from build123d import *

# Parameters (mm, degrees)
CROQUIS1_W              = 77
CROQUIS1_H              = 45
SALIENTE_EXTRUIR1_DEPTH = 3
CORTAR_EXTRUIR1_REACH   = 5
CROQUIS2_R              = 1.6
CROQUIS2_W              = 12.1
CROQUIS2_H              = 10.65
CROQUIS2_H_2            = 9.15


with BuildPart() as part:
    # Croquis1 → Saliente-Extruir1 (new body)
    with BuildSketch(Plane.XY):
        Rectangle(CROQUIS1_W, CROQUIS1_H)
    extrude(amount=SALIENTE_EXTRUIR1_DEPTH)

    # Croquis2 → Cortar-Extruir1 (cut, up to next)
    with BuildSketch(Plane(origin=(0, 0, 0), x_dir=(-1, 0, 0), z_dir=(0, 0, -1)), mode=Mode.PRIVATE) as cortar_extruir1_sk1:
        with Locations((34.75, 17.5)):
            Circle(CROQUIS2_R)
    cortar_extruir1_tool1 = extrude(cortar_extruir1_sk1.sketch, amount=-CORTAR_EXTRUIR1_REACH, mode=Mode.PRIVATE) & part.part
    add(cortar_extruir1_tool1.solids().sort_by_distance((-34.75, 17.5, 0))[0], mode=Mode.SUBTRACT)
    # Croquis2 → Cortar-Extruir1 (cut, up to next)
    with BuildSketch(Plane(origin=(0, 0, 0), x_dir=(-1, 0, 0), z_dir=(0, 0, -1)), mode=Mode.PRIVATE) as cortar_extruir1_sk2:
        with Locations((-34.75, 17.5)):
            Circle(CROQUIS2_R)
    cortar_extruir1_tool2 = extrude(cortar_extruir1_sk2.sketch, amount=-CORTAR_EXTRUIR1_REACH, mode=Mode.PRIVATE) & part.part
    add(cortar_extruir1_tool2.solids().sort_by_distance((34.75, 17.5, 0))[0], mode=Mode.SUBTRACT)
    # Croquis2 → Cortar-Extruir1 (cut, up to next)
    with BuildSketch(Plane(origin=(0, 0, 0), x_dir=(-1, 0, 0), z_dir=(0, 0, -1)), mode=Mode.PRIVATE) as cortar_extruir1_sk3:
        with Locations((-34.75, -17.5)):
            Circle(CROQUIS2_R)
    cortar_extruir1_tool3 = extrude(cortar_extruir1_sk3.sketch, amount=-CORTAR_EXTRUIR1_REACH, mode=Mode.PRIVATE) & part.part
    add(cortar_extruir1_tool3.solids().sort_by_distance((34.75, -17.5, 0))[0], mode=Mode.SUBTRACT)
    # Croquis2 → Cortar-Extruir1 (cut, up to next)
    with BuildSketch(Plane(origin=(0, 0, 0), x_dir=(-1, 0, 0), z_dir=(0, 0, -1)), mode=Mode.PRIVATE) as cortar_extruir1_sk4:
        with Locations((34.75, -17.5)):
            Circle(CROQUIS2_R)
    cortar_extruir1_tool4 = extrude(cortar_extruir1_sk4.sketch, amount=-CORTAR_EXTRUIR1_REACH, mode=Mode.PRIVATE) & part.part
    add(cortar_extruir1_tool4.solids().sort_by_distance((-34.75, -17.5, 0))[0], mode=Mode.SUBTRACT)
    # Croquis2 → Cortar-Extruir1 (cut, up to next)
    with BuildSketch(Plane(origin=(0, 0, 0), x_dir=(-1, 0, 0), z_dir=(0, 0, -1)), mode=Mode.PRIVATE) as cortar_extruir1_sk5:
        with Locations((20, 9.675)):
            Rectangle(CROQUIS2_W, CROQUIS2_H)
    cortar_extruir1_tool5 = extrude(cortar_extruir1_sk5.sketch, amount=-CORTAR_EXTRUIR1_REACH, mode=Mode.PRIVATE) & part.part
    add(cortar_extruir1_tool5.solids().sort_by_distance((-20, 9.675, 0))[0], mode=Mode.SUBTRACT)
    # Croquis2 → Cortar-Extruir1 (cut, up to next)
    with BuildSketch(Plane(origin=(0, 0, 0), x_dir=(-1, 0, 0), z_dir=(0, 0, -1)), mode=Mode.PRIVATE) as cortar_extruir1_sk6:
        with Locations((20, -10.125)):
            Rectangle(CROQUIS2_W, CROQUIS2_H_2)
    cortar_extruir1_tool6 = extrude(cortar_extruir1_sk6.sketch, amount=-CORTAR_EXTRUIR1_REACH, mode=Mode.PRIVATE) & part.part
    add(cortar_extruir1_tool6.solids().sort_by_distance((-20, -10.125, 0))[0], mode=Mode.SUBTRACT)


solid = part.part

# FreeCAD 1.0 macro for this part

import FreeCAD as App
import Part
import Sketcher
Q = App.Units.Quantity

doc = App.newDocument("Part")
body = doc.addObject("PartDesign::Body", "Body")

# Sketch on XY plane
sketch1 = doc.addObject("Sketcher::SketchObject", "Sketch")
body.addObject(sketch1)
sketch1.AttachmentSupport = (doc.XY_Plane, [""])
sketch1.MapMode = "FlatFace"
sketch1.addGeometry(Part.LineSegment(App.Vector(-38, 22, 0), App.Vector(-38, -22, 0)), False)
sketch1.addGeometry(Part.LineSegment(App.Vector(-38, -22, 0), App.Vector(38, -22, 0)), False)
sketch1.addGeometry(Part.LineSegment(App.Vector(38, -22, 0), App.Vector(38, 22, 0)), False)
sketch1.addGeometry(Part.LineSegment(App.Vector(38, 22, 0), App.Vector(-38, 22, 0)), False)
sketch1.addConstraint(Sketcher.Constraint("Coincident", 0, 2, 1, 1))
sketch1.addConstraint(Sketcher.Constraint("Coincident", 1, 2, 2, 1))
sketch1.addConstraint(Sketcher.Constraint("Coincident", 2, 2, 3, 1))
sketch1.addConstraint(Sketcher.Constraint("Coincident", 3, 2, 0, 1))
sketch1.addConstraint(Sketcher.Constraint("Vertical", 0))
sketch1.addConstraint(Sketcher.Constraint("Horizontal", 1))
sketch1.addConstraint(Sketcher.Constraint("Vertical", 2))
sketch1.addConstraint(Sketcher.Constraint("Horizontal", 3))
sketch1.addConstraint(Sketcher.Constraint("Symmetric", 0, 2, 2, 2, -1, 1))
sketch1.addConstraint(Sketcher.Constraint("DistanceX", 1, 1, 1, 2, Q("77 mm")))
sketch1.addConstraint(Sketcher.Constraint("DistanceY", 0, 2, 0, 1, Q("45 mm")))
pad1 = doc.addObject("PartDesign::Pad", "Pad")
body.addObject(pad1)
pad1.Profile = sketch1
pad1.Length = 3

# Sketch on XY plane
sketch2 = doc.addObject("Sketcher::SketchObject", "Sketch001")
body.addObject(sketch2)
sketch2.AttachmentSupport = (doc.XY_Plane, [""])
sketch2.MapMode = "FlatFace"
sketch2.addGeometry(Part.Circle(App.Vector(-34.8, 17.5, 0), App.Vector(0, 0, 1), 1.6), False)
sketch2.addConstraint(Sketcher.Constraint("Diameter", 0, Q("3.2 mm")))
sketch2.addConstraint(Sketcher.Constraint("DistanceY", -1, 1, 0, 3, Q("17.5 mm")))
sketch2.addConstraint(Sketcher.Constraint("DistanceX", 0, 3, -1, 1, Q("34.75 mm")))
pocket1 = doc.addObject("PartDesign::Pocket", "Pocket")
body.addObject(pocket1)
pocket1.Profile = sketch2
pocket1.Type = "UpToFirst"
pocket1.Reversed = True

# Sketch on XY plane
sketch3 = doc.addObject("Sketcher::SketchObject", "Sketch002")
body.addObject(sketch3)
sketch3.AttachmentSupport = (doc.XY_Plane, [""])
sketch3.MapMode = "FlatFace"
sketch3.addGeometry(Part.Circle(App.Vector(34.8, 17.5, 0), App.Vector(0, 0, 1), 1.6), False)
sketch3.addConstraint(Sketcher.Constraint("Diameter", 0, Q("3.2 mm")))
sketch3.addConstraint(Sketcher.Constraint("DistanceY", -1, 1, 0, 3, Q("17.5 mm")))
sketch3.addConstraint(Sketcher.Constraint("DistanceX", -1, 1, 0, 3, Q("34.75 mm")))
pocket2 = doc.addObject("PartDesign::Pocket", "Pocket001")
body.addObject(pocket2)
pocket2.Profile = sketch3
pocket2.Type = "UpToFirst"
pocket2.Reversed = True

# Sketch on XY plane
sketch4 = doc.addObject("Sketcher::SketchObject", "Sketch003")
body.addObject(sketch4)
sketch4.AttachmentSupport = (doc.XY_Plane, [""])
sketch4.MapMode = "FlatFace"
sketch4.addGeometry(Part.Circle(App.Vector(34.8, -17.5, 0), App.Vector(0, 0, 1), 1.6), False)
sketch4.addConstraint(Sketcher.Constraint("Diameter", 0, Q("3.2 mm")))
sketch4.addConstraint(Sketcher.Constraint("DistanceY", 0, 3, -1, 1, Q("17.5 mm")))
sketch4.addConstraint(Sketcher.Constraint("DistanceX", -1, 1, 0, 3, Q("34.75 mm")))
pocket3 = doc.addObject("PartDesign::Pocket", "Pocket002")
body.addObject(pocket3)
pocket3.Profile = sketch4
pocket3.Type = "UpToFirst"
pocket3.Reversed = True

# Sketch on XY plane
sketch5 = doc.addObject("Sketcher::SketchObject", "Sketch004")
body.addObject(sketch5)
sketch5.AttachmentSupport = (doc.XY_Plane, [""])
sketch5.MapMode = "FlatFace"
sketch5.addGeometry(Part.Circle(App.Vector(-34.8, -17.5, 0), App.Vector(0, 0, 1), 1.6), False)
sketch5.addConstraint(Sketcher.Constraint("Diameter", 0, Q("3.2 mm")))
sketch5.addConstraint(Sketcher.Constraint("DistanceY", 0, 3, -1, 1, Q("17.5 mm")))
sketch5.addConstraint(Sketcher.Constraint("DistanceX", 0, 3, -1, 1, Q("34.75 mm")))
pocket4 = doc.addObject("PartDesign::Pocket", "Pocket003")
body.addObject(pocket4)
pocket4.Profile = sketch5
pocket4.Type = "UpToFirst"
pocket4.Reversed = True

# Sketch on XY plane
sketch6 = doc.addObject("Sketcher::SketchObject", "Sketch005")
body.addObject(sketch6)
sketch6.AttachmentSupport = (doc.XY_Plane, [""])
sketch6.MapMode = "FlatFace"
sketch6.addGeometry(Part.LineSegment(App.Vector(-14, 15, 0), App.Vector(-14, 4, 0)), False)
sketch6.addGeometry(Part.LineSegment(App.Vector(-14, 4, 0), App.Vector(-26, 4, 0)), False)
sketch6.addGeometry(Part.LineSegment(App.Vector(-26, 4, 0), App.Vector(-26, 15, 0)), False)
sketch6.addGeometry(Part.LineSegment(App.Vector(-26, 15, 0), App.Vector(-14, 15, 0)), False)
sketch6.addConstraint(Sketcher.Constraint("Coincident", 0, 2, 1, 1))
sketch6.addConstraint(Sketcher.Constraint("Coincident", 1, 2, 2, 1))
sketch6.addConstraint(Sketcher.Constraint("Coincident", 2, 2, 3, 1))
sketch6.addConstraint(Sketcher.Constraint("Coincident", 3, 2, 0, 1))
sketch6.addConstraint(Sketcher.Constraint("Vertical", 0))
sketch6.addConstraint(Sketcher.Constraint("Horizontal", 1))
sketch6.addConstraint(Sketcher.Constraint("Vertical", 2))
sketch6.addConstraint(Sketcher.Constraint("Horizontal", 3))
sketch6.addConstraint(Sketcher.Constraint("DistanceX", 1, 2, 1, 1, Q("12.1 mm")))
sketch6.addConstraint(Sketcher.Constraint("DistanceY", -1, 1, 2, 2, Q("15 mm")))
sketch6.addConstraint(Sketcher.Constraint("DistanceY", 0, 2, 0, 1, Q("10.65 mm")))
sketch6.addConstraint(Sketcher.Constraint("DistanceX", 0, 2, -1, 1, Q("13.95 mm")))
pocket5 = doc.addObject("PartDesign::Pocket", "Pocket004")
body.addObject(pocket5)
pocket5.Profile = sketch6
pocket5.Type = "UpToFirst"
pocket5.Reversed = True

# Sketch on XY plane
sketch7 = doc.addObject("Sketcher::SketchObject", "Sketch006")
body.addObject(sketch7)
sketch7.AttachmentSupport = (doc.XY_Plane, [""])
sketch7.MapMode = "FlatFace"
sketch7.addGeometry(Part.LineSegment(App.Vector(-14, -6, 0), App.Vector(-14, -15, 0)), False)
sketch7.addGeometry(Part.LineSegment(App.Vector(-14, -15, 0), App.Vector(-26, -15, 0)), False)
sketch7.addGeometry(Part.LineSegment(App.Vector(-26, -15, 0), App.Vector(-26, -6, 0)), False)
sketch7.addGeometry(Part.LineSegment(App.Vector(-26, -6, 0), App.Vector(-14, -6, 0)), False)
sketch7.addConstraint(Sketcher.Constraint("Coincident", 0, 2, 1, 1))
sketch7.addConstraint(Sketcher.Constraint("Coincident", 1, 2, 2, 1))
sketch7.addConstraint(Sketcher.Constraint("Coincident", 2, 2, 3, 1))
sketch7.addConstraint(Sketcher.Constraint("Coincident", 3, 2, 0, 1))
sketch7.addConstraint(Sketcher.Constraint("Vertical", 0))
sketch7.addConstraint(Sketcher.Constraint("Horizontal", 1))
sketch7.addConstraint(Sketcher.Constraint("Vertical", 2))
sketch7.addConstraint(Sketcher.Constraint("Horizontal", 3))
sketch7.addConstraint(Sketcher.Constraint("DistanceX", 1, 2, 1, 1, Q("12.1 mm")))
sketch7.addConstraint(Sketcher.Constraint("DistanceY", 0, 2, 0, 1, Q("9.15 mm")))
sketch7.addConstraint(Sketcher.Constraint("DistanceY", 0, 2, -1, 1, Q("14.7 mm")))
sketch7.addConstraint(Sketcher.Constraint("DistanceX", 0, 2, -1, 1, Q("13.95 mm")))
pocket6 = doc.addObject("PartDesign::Pocket", "Pocket005")
body.addObject(pocket6)
pocket6.Profile = sketch7
pocket6.Type = "UpToFirst"
pocket6.Reversed = True

doc.recompute()
